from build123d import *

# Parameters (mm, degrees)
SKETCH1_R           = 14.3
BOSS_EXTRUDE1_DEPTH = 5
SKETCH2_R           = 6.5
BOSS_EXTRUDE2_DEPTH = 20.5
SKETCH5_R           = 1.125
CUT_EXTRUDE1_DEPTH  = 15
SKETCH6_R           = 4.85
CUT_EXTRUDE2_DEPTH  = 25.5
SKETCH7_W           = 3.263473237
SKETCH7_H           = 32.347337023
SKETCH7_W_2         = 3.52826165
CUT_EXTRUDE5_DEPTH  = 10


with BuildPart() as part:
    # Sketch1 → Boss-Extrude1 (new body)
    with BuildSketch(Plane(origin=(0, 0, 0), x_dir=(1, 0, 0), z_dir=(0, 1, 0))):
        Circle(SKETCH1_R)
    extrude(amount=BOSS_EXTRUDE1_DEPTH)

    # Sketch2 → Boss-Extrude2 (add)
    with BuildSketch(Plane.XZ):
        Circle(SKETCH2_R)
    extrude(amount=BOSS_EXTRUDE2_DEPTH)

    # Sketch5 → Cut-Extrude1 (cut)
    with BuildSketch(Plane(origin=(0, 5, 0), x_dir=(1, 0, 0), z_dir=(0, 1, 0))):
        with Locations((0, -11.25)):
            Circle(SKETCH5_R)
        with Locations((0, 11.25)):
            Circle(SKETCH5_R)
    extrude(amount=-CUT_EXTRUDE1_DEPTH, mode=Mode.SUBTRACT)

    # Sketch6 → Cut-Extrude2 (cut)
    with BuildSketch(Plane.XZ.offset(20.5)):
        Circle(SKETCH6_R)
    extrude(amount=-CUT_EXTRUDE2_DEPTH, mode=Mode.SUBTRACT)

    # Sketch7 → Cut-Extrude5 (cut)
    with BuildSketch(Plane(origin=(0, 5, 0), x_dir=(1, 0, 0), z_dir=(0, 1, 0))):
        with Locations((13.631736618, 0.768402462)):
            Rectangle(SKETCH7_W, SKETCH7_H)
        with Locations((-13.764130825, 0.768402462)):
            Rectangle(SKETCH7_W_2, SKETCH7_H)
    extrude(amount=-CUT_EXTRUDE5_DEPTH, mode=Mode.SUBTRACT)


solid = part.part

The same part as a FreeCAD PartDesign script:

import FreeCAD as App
import Part
import Sketcher

V = App.Vector
Q = App.Units.Quantity


def add_polygon(sketch, points):
    """Adds a closed chain of lines whose ends are joined by coincident constraints."""
    first, n = sketch.GeometryCount, len(points)
    for a, b in zip(points, points[1:] + points[:1]):
        sketch.addGeometry(Part.LineSegment(App.Vector(*a, 0), App.Vector(*b, 0)), False)
    for i in range(n):
        sketch.addConstraint(Sketcher.Constraint("Coincident", first + i, 2, first + (i + 1) % n, 1))

doc = App.newDocument("Part")
body = doc.addObject("PartDesign::Body", "Body")

sketch1 = body.newObject("Sketcher::SketchObject", "Sketch")
sketch1.AttachmentSupport = (doc.getObject("XZ_Plane"), [""])
sketch1.MapMode = "FlatFace"
sketch1.addGeometry(Part.Circle(V(0, 0, 0), V(0, 0, 1), 14.3), False)
sketch1.addConstraint([
    Sketcher.Constraint("Coincident", 0, 3, -1, 1),
    Sketcher.Constraint("Diameter", 0, Q("28.6 mm")),
])
pad1 = body.newObject("PartDesign::Pad", "Pad")
pad1.Profile = sketch1
pad1.Length = 5
pad1.Reversed = True

sketch2 = body.newObject("Sketcher::SketchObject", "Sketch001")
sketch2.AttachmentSupport = (doc.getObject("XZ_Plane"), [""])
sketch2.MapMode = "FlatFace"
sketch2.addGeometry(Part.Circle(V(0, 0, 0), V(0, 0, 1), 6.5), False)
sketch2.addConstraint([
    Sketcher.Constraint("Coincident", 0, 3, -1, 1),
    Sketcher.Constraint("Diameter", 0, Q("13 mm")),
])
pad2 = body.newObject("PartDesign::Pad", "Pad001")
pad2.Profile = sketch2
pad2.Length = 20.5

sketch3 = body.newObject("Sketcher::SketchObject", "Sketch002")
sketch3.AttachmentSupport = (doc.getObject("XZ_Plane"), [""])
sketch3.MapMode = "FlatFace"
sketch3.AttachmentOffset = App.Placement(V(0, 0, -5), App.Rotation())
sketch3.addGeometry([
    Part.Circle(V(0, 11.25, 0), V(0, 0, 1), 1.125),
    Part.Circle(V(0, -11.25, 0), V(0, 0, 1), 1.125),
], False)
sketch3.addConstraint([
    Sketcher.Constraint("Equal", 0, 1),
    Sketcher.Constraint("Symmetric", 0, 3, 1, 3, -1, 1),
    Sketcher.Constraint("PointOnObject", 0, 3, -2),
    Sketcher.Constraint("Diameter", 0, Q("2.25 mm")),
    Sketcher.Constraint("DistanceY", 1, 3, 0, 3, Q("22.5 mm")),
])
pocket1 = body.newObject("PartDesign::Pocket", "Pocket")
pocket1.Profile = sketch3
pocket1.Length = 15
pocket1.Reversed = True

sketch4 = body.newObject("Sketcher::SketchObject", "Sketch003")
sketch4.AttachmentSupport = (doc.getObject("XZ_Plane"), [""])
sketch4.MapMode = "FlatFace"
sketch4.AttachmentOffset = App.Placement(V(0, 0, 20.5), App.Rotation())
sketch4.addGeometry(Part.Circle(V(0, 0, 0), V(0, 0, 1), 4.85), False)
sketch4.addConstraint([
    Sketcher.Constraint("Coincident", 0, 3, -1, 1),
    Sketcher.Constraint("Diameter", 0, Q("9.7 mm")),
])
pocket2 = body.newObject("PartDesign::Pocket", "Pocket001")
pocket2.Profile = sketch4
pocket2.Length = 25.5

sketch5 = body.newObject("Sketcher::SketchObject", "Sketch004")
sketch5.AttachmentSupport = (doc.getObject("XZ_Plane"), [""])
sketch5.MapMode = "FlatFace"
sketch5.AttachmentOffset = App.Placement(V(0, 0, -5), App.Rotation())
add_polygon(sketch5, [(12, -16.942071), (12, 15.405266), (15.263473, 15.405266), (15.263473, -16.942071)])
add_polygon(sketch5, [(-15.528262, -16.942071), (-15.528262, 15.405266), (-12, 15.405266), (-12, -16.942071)])
sketch5.addConstraint([
    Sketcher.Constraint("Vertical", 0),
    Sketcher.Constraint("Horizontal", 1),
    Sketcher.Constraint("Vertical", 2),
    Sketcher.Constraint("Horizontal", 3),
    Sketcher.Constraint("Vertical", 4),
    Sketcher.Constraint("Horizontal", 5),
    Sketcher.Constraint("Vertical", 6),
    Sketcher.Constraint("Horizontal", 7),
    Sketcher.Constraint("Symmetric", 0, 2, 5, 2, -2),
    Sketcher.Constraint("Horizontal", 3, 2, 6, 2),
    Sketcher.Constraint("DistanceX", -1, 1, 0, 2, Q("12 mm")),
    Sketcher.Constraint("DistanceX", 5, 1, 5, 2, Q("3.528262 mm")),
    Sketcher.Constraint("DistanceX", 1, 1, 1, 2, Q("3.263473 mm")),
    Sketcher.Constraint("DistanceY", 0, 1, 0, 2, Q("32.347337 mm")),
    Sketcher.Constraint("DistanceY", 2, 2, -1, 1, Q("16.942071 mm")),
])
pocket3 = body.newObject("PartDesign::Pocket", "Pocket002")
pocket3.Profile = sketch5
pocket3.Length = 10
pocket3.Reversed = True

doc.recompute()
